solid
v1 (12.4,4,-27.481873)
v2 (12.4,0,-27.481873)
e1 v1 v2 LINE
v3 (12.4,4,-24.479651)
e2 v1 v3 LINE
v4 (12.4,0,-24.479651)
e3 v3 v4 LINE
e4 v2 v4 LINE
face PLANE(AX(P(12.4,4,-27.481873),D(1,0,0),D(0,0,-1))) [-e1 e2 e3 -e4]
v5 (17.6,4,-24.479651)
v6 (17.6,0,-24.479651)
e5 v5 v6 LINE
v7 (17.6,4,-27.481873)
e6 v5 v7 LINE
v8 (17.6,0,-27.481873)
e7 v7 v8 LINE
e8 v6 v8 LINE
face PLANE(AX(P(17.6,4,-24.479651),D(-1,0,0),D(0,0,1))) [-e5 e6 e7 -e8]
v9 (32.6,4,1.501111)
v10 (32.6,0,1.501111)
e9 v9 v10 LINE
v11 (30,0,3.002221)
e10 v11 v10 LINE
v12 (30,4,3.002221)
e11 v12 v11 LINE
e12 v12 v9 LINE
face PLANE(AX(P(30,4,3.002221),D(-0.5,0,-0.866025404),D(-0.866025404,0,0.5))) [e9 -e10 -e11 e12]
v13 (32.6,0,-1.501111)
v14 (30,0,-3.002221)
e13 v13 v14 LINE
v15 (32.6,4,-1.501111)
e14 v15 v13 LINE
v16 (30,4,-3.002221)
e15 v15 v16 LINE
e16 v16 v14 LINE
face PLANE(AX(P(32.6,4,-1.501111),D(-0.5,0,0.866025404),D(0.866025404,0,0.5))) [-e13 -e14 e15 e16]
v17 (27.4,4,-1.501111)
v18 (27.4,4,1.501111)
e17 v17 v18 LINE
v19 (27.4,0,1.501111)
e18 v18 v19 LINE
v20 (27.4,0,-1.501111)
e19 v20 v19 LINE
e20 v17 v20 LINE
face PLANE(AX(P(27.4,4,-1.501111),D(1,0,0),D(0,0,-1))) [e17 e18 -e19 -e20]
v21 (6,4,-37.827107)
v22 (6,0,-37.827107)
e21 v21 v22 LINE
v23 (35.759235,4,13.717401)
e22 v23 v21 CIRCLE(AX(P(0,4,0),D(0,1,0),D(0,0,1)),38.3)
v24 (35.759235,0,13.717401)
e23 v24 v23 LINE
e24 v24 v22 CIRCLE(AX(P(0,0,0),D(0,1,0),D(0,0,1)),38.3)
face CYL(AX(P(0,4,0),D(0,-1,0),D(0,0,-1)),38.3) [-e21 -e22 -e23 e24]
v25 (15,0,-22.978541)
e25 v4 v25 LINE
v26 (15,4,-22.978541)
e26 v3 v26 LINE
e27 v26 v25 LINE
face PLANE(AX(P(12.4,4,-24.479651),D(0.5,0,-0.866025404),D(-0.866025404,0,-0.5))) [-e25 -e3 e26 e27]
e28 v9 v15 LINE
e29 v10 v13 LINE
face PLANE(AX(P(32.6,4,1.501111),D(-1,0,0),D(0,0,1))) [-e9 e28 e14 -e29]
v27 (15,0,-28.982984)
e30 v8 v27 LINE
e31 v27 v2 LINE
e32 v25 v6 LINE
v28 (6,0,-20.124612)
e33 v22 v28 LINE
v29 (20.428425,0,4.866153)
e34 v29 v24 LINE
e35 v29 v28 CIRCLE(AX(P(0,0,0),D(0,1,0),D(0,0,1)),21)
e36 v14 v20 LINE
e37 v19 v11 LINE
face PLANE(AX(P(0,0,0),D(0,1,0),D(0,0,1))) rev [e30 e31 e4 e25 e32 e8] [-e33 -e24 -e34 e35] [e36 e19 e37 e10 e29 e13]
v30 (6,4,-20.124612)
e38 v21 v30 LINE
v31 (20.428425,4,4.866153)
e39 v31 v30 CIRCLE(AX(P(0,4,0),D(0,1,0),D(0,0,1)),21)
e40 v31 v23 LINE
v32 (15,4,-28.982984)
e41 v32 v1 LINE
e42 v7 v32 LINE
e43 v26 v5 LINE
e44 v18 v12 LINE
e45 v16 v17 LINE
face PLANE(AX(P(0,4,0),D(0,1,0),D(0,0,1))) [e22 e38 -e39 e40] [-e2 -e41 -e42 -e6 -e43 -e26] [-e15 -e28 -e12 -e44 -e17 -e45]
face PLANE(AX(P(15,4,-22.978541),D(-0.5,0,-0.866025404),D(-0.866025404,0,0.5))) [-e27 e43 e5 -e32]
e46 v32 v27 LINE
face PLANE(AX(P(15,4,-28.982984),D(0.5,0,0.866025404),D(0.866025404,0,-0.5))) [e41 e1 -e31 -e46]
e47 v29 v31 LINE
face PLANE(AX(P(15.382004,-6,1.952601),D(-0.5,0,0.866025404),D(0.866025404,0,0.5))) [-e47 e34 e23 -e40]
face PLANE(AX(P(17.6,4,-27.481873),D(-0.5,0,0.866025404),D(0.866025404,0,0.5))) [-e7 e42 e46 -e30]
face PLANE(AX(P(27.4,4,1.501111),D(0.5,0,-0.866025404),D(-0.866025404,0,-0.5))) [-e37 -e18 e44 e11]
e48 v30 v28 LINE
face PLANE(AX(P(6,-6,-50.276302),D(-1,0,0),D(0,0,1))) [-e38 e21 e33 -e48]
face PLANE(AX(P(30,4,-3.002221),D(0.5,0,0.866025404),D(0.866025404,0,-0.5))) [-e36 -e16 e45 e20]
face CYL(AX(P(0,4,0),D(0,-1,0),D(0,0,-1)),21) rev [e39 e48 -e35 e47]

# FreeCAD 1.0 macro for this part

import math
import FreeCAD as App
import Part
import Sketcher
from FreeCAD import Vector
Q = App.Units.Quantity

doc = App.newDocument("Part")
body = doc.addObject("PartDesign::Body", "Body")

# Sketch on XZ plane
sketch1 = body.newObject("Sketcher::SketchObject", "Sketch")
sketch1.AttachmentSupport = (doc.getObject("XZ_Plane"), [""])
sketch1.MapMode = "FlatFace"
sketch1.addGeometry([
    Part.Circle(Vector(0, 0, 0), Vector(0, 0, 1), 38.3),  # 0
    Part.LineSegment(Vector(-15, -29, 0), Vector(-12.4, -27.5, 0)),  # 1
    Part.LineSegment(Vector(-12.4, -27.5, 0), Vector(-12.4, -24.5, 0)),  # 2
    Part.LineSegment(Vector(-12.4, -24.5, 0), Vector(-15, -23, 0)),  # 3
    Part.LineSegment(Vector(-15, -23, 0), Vector(-17.6, -24.5, 0)),  # 4
    Part.LineSegment(Vector(-17.6, -24.5, 0), Vector(-17.6, -27.5, 0)),  # 5
    Part.LineSegment(Vector(-17.6, -27.5, 0), Vector(-15, -29, 0)),  # 6
    Part.LineSegment(Vector(-32.6, -1.5, 0), Vector(-30, -3, 0)),  # 7
    Part.LineSegment(Vector(-30, -3, 0), Vector(-27.4, -1.5, 0)),  # 8
    Part.LineSegment(Vector(-27.4, -1.5, 0), Vector(-27.4, 1.5, 0)),  # 9
    Part.LineSegment(Vector(-27.4, 1.5, 0), Vector(-30, 3, 0)),  # 10
    Part.LineSegment(Vector(-30, 3, 0), Vector(-32.6, 1.5, 0)),  # 11
    Part.LineSegment(Vector(-32.6, 1.5, 0), Vector(-32.6, -1.5, 0)),  # 12
    Part.LineSegment(Vector(-17.6, 27.5, 0), Vector(-17.6, 24.5, 0)),  # 13
    Part.LineSegment(Vector(-17.6, 24.5, 0), Vector(-15, 23, 0)),  # 14
    Part.LineSegment(Vector(-15, 23, 0), Vector(-12.4, 24.5, 0)),  # 15
    Part.LineSegment(Vector(-12.4, 24.5, 0), Vector(-12.4, 27.5, 0)),  # 16
    Part.LineSegment(Vector(-12.4, 27.5, 0), Vector(-15, 29, 0)),  # 17
    Part.LineSegment(Vector(-15, 29, 0), Vector(-17.6, 27.5, 0)),  # 18
    Part.LineSegment(Vector(17.6, -27.5, 0), Vector(17.6, -24.5, 0)),  # 19
    Part.LineSegment(Vector(17.6, -24.5, 0), Vector(15, -23, 0)),  # 20
    Part.LineSegment(Vector(15, -23, 0), Vector(12.4, -24.5, 0)),  # 21
    Part.LineSegment(Vector(12.4, -24.5, 0), Vector(12.4, -27.5, 0)),  # 22
    Part.LineSegment(Vector(12.4, -27.5, 0), Vector(15, -29, 0)),  # 23
    Part.LineSegment(Vector(15, -29, 0), Vector(17.6, -27.5, 0)),  # 24
    Part.Circle(Vector(0, 0, 0), Vector(0, 0, 1), 21),  # 25
    Part.LineSegment(Vector(27.4, -1.5, 0), Vector(30, -3, 0)),  # 26
    Part.LineSegment(Vector(30, -3, 0), Vector(32.6, -1.5, 0)),  # 27
    Part.LineSegment(Vector(32.6, -1.5, 0), Vector(32.6, 1.5, 0)),  # 28
    Part.LineSegment(Vector(32.6, 1.5, 0), Vector(30, 3, 0)),  # 29
    Part.LineSegment(Vector(30, 3, 0), Vector(27.4, 1.5, 0)),  # 30
    Part.LineSegment(Vector(27.4, 1.5, 0), Vector(27.4, -1.5, 0)),  # 31
    Part.LineSegment(Vector(15, 29, 0), Vector(12.4, 27.5, 0)),  # 32
    Part.LineSegment(Vector(12.4, 27.5, 0), Vector(12.4, 24.5, 0)),  # 33
    Part.LineSegment(Vector(12.4, 24.5, 0), Vector(15, 23, 0)),  # 34
    Part.LineSegment(Vector(15, 23, 0), Vector(17.6, 24.5, 0)),  # 35
    Part.LineSegment(Vector(17.6, 24.5, 0), Vector(17.6, 27.5, 0)),  # 36
    Part.LineSegment(Vector(17.6, 27.5, 0), Vector(15, 29, 0)),  # 37
], False)
sketch1.addConstraint([
    Sketcher.Constraint("Coincident", 1, 2, 2, 1),
    Sketcher.Constraint("Coincident", 2, 2, 3, 1),
    Sketcher.Constraint("Coincident", 3, 2, 4, 1),
    Sketcher.Constraint("Coincident", 4, 2, 5, 1),
    Sketcher.Constraint("Coincident", 5, 2, 6, 1),
    Sketcher.Constraint("Coincident", 6, 2, 1, 1),
    Sketcher.Constraint("Coincident", 7, 2, 8, 1),
    Sketcher.Constraint("Coincident", 8, 2, 9, 1),
    Sketcher.Constraint("Coincident", 9, 2, 10, 1),
    Sketcher.Constraint("Coincident", 10, 2, 11, 1),
    Sketcher.Constraint("Coincident", 11, 2, 12, 1),
    Sketcher.Constraint("Coincident", 12, 2, 7, 1),
    Sketcher.Constraint("Coincident", 13, 2, 14, 1),
    Sketcher.Constraint("Coincident", 14, 2, 15, 1),
    Sketcher.Constraint("Coincident", 15, 2, 16, 1),
    Sketcher.Constraint("Coincident", 16, 2, 17, 1),
    Sketcher.Constraint("Coincident", 17, 2, 18, 1),
    Sketcher.Constraint("Coincident", 18, 2, 13, 1),
    Sketcher.Constraint("Coincident", 19, 2, 20, 1),
    Sketcher.Constraint("Coincident", 20, 2, 21, 1),
    Sketcher.Constraint("Coincident", 21, 2, 22, 1),
    Sketcher.Constraint("Coincident", 22, 2, 23, 1),
    Sketcher.Constraint("Coincident", 23, 2, 24, 1),
    Sketcher.Constraint("Coincident", 24, 2, 19, 1),
    Sketcher.Constraint("Coincident", 26, 2, 27, 1),
    Sketcher.Constraint("Coincident", 27, 2, 28, 1),
    Sketcher.Constraint("Coincident", 28, 2, 29, 1),
    Sketcher.Constraint("Coincident", 29, 2, 30, 1),
    Sketcher.Constraint("Coincident", 30, 2, 31, 1),
    Sketcher.Constraint("Coincident", 31, 2, 26, 1),
    Sketcher.Constraint("Coincident", 32, 2, 33, 1),
    Sketcher.Constraint("Coincident", 33, 2, 34, 1),
    Sketcher.Constraint("Coincident", 34, 2, 35, 1),
    Sketcher.Constraint("Coincident", 35, 2, 36, 1),
    Sketcher.Constraint("Coincident", 36, 2, 37, 1),
    Sketcher.Constraint("Coincident", 37, 2, 32, 1),
    Sketcher.Constraint("Vertical", 2),
    Sketcher.Constraint("Vertical", 5),
    Sketcher.Constraint("Vertical", 9),
    Sketcher.Constraint("Vertical", 12),
    Sketcher.Constraint("Vertical", 13),
    Sketcher.Constraint("Vertical", 16),
    Sketcher.Constraint("Vertical", 19),
    Sketcher.Constraint("Vertical", 22),
    Sketcher.Constraint("Vertical", 28),
    Sketcher.Constraint("Vertical", 31),
    Sketcher.Constraint("Vertical", 33),
    Sketcher.Constraint("Vertical", 36),
    Sketcher.Constraint("Coincident", 0, 3, -1, 1),
    Sketcher.Constraint("Coincident", 25, 3, -1, 1),
    Sketcher.Constraint("Symmetric", 13, 2, 19, 2, -1, 1),
    Sketcher.Constraint("Symmetric", 14, 2, 20, 2, -1, 1),
    Sketcher.Constraint("Symmetric", 15, 2, 21, 2, -1, 1),
    Sketcher.Constraint("Symmetric", 17, 2, 23, 2, -1, 1),
    Sketcher.Constraint("Symmetric", 10, 2, 26, 2, -1, 1),
    Sketcher.Constraint("Symmetric", 11, 2, 27, 2, -1, 1),
    Sketcher.Constraint("Symmetric", 7, 2, 29, 2, -1, 1),
    Sketcher.Constraint("Symmetric", 8, 2, 30, 2, -1, 1),
    Sketcher.Constraint("Symmetric", 1, 2, 32, 2, -1, 1),
    Sketcher.Constraint("Symmetric", 3, 2, 34, 2, -1, 1),
    Sketcher.Constraint("Symmetric", 4, 2, 35, 2, -1, 1),
    Sketcher.Constraint("Symmetric", 6, 2, 37, 2, -1, 1),
    Sketcher.Constraint("Symmetric", 4, 2, 19, 2, -2),
    Sketcher.Constraint("Symmetric", 3, 2, 20, 2, -2),
    Sketcher.Constraint("Symmetric", 2, 2, 21, 2, -2),
    Sketcher.Constraint("Symmetric", 6, 2, 23, 2, -2),
    Sketcher.Constraint("Symmetric", 7, 2, 26, 2, -2),
    Sketcher.Constraint("Parallel", 1, 4),
    Sketcher.Constraint("Parallel", 3, 6),
    Sketcher.Constraint("Parallel", 6, 7),
    Sketcher.Constraint("Parallel", 4, 8),
    Sketcher.Constraint("Parallel", 7, 10),
    Sketcher.Constraint("Parallel", 8, 11),
    Sketcher.Constraint("Parallel", 10, 14),
    Sketcher.Constraint("Parallel", 14, 17),
    Sketcher.Constraint("Parallel", 15, 18),
    Sketcher.Constraint("Parallel", 20, 23),
    Sketcher.Constraint("Parallel", 21, 24),
    Sketcher.Constraint("Parallel", 23, 26),
    Sketcher.Constraint("Parallel", 26, 29),
    Sketcher.Constraint("Parallel", 29, 34),
    Sketcher.Constraint("Parallel", 34, 37),
    Sketcher.Constraint("Horizontal", 2, 2, 4, 2),
    Sketcher.Constraint("Horizontal", 1, 2, 5, 2),
    Sketcher.Constraint("Horizontal", 9, 2, 11, 2),
    Sketcher.Constraint("Equal", 5, 9),
    Sketcher.Constraint("Equal", 6, 7),
    Sketcher.Constraint("Diameter", 25, Q("42 mm")),
    Sketcher.Constraint("Diameter", 0, Q("76.6 mm")),
    Sketcher.Constraint("Angle", 1, Q("30 deg")),
    Sketcher.Constraint("DistanceX", 3, 2, -1, 1, Q("15 mm")),
    Sketcher.Constraint("DistanceX", 7, 2, -1, 1, Q("30 mm")),
    Sketcher.Constraint("DistanceX", 1, 2, -1, 1, Q("12.4 mm")),
    Sketcher.Constraint("DistanceY", 2, 1, 2, 2, Q("3.002221 mm")),
    Sketcher.Constraint("DistanceY", 2, 2, -1, 1, Q("24.479651 mm")),
])
pad1 = body.newObject("PartDesign::Pad", "Pad")
pad1.Profile = sketch1
pad1.Length = 4
pad1.Reversed = True

# Sketch on XZ plane
sketch2 = body.newObject("Sketcher::SketchObject", "Sketch001")
sketch2.AttachmentSupport = (doc.getObject("XZ_Plane"), [""])
sketch2.MapMode = "FlatFace"
sketch2.AttachmentOffset = App.Placement(Vector(0, 0, -4), App.Rotation())
sketch2.addGeometry([
    Part.LineSegment(Vector(6, -14, 0), Vector(6, -50, 0)),
    Part.ArcOfCircle(Part.Circle(Vector(0, 0, 0), Vector(0, 0, 1), 51), math.radians(23), math.radians(277)),
    Part.LineSegment(Vector(47, 20, 0), Vector(15, 2, 0)),
    Part.ArcOfCircle(Part.Circle(Vector(0, 0, 0), Vector(0, 0, 1), 16), math.radians(-67), math.radians(7)),
], False)
sketch2.addConstraint([
    Sketcher.Constraint("Coincident", 0, 2, 1, 2),
    Sketcher.Constraint("Coincident", 1, 1, 2, 1),
    Sketcher.Constraint("Coincident", 2, 2, 3, 2),
    Sketcher.Constraint("Coincident", 3, 1, 0, 1),
    Sketcher.Constraint("Vertical", 0),
    Sketcher.Constraint("Coincident", 1, 3, -1, 1),
    Sketcher.Constraint("Coincident", 3, 3, -1, 1),
    Sketcher.Constraint("Angle", 2, Q("-150 deg")),
    Sketcher.Constraint("DistanceX", -1, 1, 0, 2, Q("6 mm")),
    Sketcher.Constraint("Radius", 1, Q("50.633058 mm")),
    Sketcher.Constraint("Radius", 3, Q("15.505441 mm")),
    Sketcher.Constraint("DistanceY", -1, 1, 1, 1, Q("19.941999 mm")),
])
pocket1 = body.newObject("PartDesign::Pocket", "Pocket")
pocket1.Profile = sketch2
pocket1.Length = 10
pocket1.Reversed = True

doc.recompute()
